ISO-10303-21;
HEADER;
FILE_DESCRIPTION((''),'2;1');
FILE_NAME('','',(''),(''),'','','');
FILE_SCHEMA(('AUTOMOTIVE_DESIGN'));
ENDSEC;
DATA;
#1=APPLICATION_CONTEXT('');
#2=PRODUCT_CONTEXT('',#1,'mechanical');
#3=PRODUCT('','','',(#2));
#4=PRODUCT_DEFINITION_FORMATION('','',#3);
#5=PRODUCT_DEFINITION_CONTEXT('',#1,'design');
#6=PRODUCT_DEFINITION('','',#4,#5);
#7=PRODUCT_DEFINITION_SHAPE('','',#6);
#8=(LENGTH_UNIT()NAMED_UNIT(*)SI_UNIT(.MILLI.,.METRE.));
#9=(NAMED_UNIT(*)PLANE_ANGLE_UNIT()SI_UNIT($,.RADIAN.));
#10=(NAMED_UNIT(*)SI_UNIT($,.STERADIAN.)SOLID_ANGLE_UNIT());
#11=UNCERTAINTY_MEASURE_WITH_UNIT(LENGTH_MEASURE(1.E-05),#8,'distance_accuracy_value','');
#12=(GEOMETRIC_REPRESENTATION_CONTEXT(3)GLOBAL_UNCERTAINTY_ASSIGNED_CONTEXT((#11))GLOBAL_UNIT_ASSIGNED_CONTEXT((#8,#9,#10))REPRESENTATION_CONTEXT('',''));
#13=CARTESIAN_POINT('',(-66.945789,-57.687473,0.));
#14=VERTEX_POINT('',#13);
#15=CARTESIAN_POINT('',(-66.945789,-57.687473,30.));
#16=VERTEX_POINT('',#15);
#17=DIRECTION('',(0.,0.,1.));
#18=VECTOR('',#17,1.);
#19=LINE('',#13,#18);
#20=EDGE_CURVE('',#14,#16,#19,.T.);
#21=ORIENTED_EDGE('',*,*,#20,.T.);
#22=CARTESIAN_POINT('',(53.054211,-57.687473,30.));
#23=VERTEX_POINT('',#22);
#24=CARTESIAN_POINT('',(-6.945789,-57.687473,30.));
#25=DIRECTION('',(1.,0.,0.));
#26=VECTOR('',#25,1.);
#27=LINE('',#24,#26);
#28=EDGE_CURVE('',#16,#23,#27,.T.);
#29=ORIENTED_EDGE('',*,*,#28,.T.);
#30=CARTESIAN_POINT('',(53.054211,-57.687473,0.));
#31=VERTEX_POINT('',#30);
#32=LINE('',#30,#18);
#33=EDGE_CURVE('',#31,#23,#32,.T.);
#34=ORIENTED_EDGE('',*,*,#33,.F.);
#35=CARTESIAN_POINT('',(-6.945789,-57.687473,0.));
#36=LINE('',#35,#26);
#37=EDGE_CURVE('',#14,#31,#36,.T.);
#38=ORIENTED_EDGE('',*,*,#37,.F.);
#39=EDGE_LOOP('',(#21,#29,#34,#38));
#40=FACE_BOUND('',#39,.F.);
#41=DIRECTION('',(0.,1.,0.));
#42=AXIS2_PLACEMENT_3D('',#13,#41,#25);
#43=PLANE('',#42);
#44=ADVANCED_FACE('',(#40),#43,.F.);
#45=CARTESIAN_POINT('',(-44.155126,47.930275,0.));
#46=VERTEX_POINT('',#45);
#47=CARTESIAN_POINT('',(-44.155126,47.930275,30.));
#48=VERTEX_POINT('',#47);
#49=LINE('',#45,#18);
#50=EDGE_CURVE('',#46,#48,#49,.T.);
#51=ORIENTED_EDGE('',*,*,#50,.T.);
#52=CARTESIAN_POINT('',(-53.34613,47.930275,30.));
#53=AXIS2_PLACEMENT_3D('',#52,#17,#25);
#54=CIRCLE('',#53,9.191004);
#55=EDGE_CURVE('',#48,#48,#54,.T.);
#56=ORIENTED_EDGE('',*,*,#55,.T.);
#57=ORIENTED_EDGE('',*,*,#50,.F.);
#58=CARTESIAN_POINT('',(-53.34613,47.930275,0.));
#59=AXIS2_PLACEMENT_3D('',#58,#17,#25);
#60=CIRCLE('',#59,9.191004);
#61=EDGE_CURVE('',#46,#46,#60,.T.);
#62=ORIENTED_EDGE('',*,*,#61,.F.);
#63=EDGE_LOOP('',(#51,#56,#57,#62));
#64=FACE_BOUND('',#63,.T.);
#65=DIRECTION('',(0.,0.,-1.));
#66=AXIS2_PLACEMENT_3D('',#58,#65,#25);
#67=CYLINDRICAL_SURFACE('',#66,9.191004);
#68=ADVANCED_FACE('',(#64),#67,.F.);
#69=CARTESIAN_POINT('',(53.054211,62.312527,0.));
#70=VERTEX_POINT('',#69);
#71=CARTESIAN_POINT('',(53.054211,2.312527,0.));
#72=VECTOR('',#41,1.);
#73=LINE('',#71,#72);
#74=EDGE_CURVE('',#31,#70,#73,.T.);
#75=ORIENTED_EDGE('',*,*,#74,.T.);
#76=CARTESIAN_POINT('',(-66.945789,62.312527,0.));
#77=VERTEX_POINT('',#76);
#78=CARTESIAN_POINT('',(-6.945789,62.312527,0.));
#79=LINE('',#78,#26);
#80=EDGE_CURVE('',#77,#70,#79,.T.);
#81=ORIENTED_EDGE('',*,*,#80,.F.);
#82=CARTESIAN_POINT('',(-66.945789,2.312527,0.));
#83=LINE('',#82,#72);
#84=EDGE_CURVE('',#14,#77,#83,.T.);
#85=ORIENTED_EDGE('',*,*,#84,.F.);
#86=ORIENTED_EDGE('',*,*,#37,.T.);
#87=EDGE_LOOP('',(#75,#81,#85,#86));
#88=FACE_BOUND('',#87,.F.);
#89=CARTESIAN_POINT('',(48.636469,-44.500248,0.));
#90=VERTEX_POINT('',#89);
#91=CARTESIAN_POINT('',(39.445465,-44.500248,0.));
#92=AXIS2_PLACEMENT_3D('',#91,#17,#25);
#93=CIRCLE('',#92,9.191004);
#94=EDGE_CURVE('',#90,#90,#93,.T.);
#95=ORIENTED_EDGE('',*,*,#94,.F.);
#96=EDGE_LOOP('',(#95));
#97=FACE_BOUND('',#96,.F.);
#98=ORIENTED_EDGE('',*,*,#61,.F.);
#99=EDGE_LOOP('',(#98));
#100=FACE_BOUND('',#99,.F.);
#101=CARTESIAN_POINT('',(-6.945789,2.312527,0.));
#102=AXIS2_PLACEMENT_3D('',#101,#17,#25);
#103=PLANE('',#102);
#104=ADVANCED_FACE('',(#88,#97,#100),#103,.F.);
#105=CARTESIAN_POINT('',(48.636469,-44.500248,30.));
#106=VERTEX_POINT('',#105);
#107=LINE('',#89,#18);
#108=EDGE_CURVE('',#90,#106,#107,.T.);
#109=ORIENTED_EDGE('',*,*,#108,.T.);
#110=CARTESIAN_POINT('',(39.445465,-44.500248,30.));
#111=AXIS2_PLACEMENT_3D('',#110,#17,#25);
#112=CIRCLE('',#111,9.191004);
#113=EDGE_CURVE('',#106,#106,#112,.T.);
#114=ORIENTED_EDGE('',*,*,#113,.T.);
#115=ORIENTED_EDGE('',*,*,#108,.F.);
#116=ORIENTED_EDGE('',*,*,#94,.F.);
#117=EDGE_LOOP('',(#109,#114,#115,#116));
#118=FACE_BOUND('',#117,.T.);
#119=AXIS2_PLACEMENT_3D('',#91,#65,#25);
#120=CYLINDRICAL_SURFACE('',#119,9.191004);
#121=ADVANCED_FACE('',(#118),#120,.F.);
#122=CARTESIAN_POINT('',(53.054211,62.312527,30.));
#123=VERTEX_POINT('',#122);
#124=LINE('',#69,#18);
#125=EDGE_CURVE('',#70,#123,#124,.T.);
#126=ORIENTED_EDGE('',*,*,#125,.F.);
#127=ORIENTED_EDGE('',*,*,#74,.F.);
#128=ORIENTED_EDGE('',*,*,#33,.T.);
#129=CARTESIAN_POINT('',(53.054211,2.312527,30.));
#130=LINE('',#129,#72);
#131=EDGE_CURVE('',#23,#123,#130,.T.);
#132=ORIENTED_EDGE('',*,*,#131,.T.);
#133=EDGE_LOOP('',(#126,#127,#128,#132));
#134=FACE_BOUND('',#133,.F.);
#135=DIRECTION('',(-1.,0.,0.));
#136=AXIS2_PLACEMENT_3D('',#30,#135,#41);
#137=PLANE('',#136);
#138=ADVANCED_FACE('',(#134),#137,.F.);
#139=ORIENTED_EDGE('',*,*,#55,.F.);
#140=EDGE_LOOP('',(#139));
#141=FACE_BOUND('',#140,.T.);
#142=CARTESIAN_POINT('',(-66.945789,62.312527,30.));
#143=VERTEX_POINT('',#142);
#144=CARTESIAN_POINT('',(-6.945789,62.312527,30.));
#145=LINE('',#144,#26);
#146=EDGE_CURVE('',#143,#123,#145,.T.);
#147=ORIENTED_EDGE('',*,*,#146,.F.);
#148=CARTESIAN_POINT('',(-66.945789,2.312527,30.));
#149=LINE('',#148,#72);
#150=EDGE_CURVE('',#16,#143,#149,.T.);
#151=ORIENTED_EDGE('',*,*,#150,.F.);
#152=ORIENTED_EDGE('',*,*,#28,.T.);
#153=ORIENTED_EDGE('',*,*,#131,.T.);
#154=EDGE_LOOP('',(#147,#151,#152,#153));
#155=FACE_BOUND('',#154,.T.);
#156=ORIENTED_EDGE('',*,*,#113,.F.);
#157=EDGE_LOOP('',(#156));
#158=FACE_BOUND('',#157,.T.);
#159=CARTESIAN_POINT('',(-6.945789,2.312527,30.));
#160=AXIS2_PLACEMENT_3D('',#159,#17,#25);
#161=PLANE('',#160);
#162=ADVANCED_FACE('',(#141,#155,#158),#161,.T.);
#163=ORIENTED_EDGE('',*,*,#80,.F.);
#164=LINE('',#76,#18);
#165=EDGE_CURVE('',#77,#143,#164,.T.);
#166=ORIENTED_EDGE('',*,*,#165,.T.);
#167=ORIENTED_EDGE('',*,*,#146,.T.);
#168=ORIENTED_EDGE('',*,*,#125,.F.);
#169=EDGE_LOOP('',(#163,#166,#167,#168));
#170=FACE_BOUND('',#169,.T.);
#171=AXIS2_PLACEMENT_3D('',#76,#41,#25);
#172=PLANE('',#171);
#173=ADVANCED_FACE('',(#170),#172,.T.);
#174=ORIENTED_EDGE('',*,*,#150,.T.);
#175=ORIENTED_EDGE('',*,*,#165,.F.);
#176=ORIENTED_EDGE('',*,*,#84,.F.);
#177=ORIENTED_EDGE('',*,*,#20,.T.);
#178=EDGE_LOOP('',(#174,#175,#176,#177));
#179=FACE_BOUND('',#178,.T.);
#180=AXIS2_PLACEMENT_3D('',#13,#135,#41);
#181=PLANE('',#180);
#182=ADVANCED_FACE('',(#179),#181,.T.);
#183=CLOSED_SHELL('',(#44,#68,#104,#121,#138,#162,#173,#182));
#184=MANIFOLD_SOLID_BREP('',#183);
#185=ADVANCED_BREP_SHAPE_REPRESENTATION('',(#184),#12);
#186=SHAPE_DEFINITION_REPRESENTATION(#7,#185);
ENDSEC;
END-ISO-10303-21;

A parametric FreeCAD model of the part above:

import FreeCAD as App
import Part
import Sketcher

V = App.Vector
Q = App.Units.Quantity


def add_polygon(sketch, points):
    """Adds a closed chain of lines whose ends are joined by coincident constraints."""
    first, n = sketch.GeometryCount, len(points)
    for a, b in zip(points, points[1:] + points[:1]):
        sketch.addGeometry(Part.LineSegment(App.Vector(*a, 0), App.Vector(*b, 0)), False)
    for i in range(n):
        sketch.addConstraint(Sketcher.Constraint("Coincident", first + i, 2, first + (i + 1) % n, 1))

doc = App.newDocument("Part")
params = doc.addObject("Spreadsheet::Sheet", "Params")
for row, (alias, value) in enumerate([
    ("sketch1_width", "120 mm"),
    ("pad1_length", "30 mm"),
], start=1):
    params.set(f"A{row}", alias)
    params.set(f"B{row}", "=" + value)
    params.setAlias(f"B{row}", alias)

body = doc.addObject("PartDesign::Body", "Body")

# Sketch on XY plane
sketch1 = body.newObject("Sketcher::SketchObject", "Sketch")
sketch1.AttachmentSupport = (doc.getObject("XY_Plane"), [""])
sketch1.MapMode = "FlatFace"
add_polygon(sketch1, [(-67, 62), (-67, -58), (53, -58), (53, 62)])  # lines 0-3
sketch1.addGeometry(Part.Circle(V(39, -45, 0), V(0, 0, 1), 9), False)  # 4
sketch1.addGeometry(Part.Circle(V(-53, 48, 0), V(0, 0, 1), 9), False)  # 5
sketch1.addConstraint([
    Sketcher.Constraint("Vertical", 0),
    Sketcher.Constraint("Horizontal", 1),
    Sketcher.Constraint("Vertical", 2),
    Sketcher.Constraint("Horizontal", 3),
    Sketcher.Constraint("Equal", 4, 5),
    Sketcher.Constraint("Equal", 3, 0),
    Sketcher.Constraint("DistanceX", 1, 1, 1, 2, Q("120 mm")),
    Sketcher.Constraint("Diameter", 4, Q("18.382008 mm")),
    Sketcher.Constraint("DistanceX", 5, 3, -1, 1, Q("53.34613 mm")),
    Sketcher.Constraint("DistanceX", 0, 2, -1, 1, Q("66.945789 mm")),
    Sketcher.Constraint("DistanceY", 0, 2, 5, 3, Q("105.617748 mm")),
    Sketcher.Constraint("DistanceX", -1, 1, 4, 3, Q("39.445465 mm")),
    Sketcher.Constraint("DistanceY", 4, 3, -1, 1, Q("44.500248 mm")),
    Sketcher.Constraint("DistanceY", -1, 1, 5, 3, Q("47.930275 mm")),
])
sketch1.setExpression("Constraints[10]", "Params.sketch1_width")
pad1 = body.newObject("PartDesign::Pad", "Pad")
pad1.Profile = sketch1
pad1.setExpression("Length", "Params.pad1_length")

doc.recompute()
